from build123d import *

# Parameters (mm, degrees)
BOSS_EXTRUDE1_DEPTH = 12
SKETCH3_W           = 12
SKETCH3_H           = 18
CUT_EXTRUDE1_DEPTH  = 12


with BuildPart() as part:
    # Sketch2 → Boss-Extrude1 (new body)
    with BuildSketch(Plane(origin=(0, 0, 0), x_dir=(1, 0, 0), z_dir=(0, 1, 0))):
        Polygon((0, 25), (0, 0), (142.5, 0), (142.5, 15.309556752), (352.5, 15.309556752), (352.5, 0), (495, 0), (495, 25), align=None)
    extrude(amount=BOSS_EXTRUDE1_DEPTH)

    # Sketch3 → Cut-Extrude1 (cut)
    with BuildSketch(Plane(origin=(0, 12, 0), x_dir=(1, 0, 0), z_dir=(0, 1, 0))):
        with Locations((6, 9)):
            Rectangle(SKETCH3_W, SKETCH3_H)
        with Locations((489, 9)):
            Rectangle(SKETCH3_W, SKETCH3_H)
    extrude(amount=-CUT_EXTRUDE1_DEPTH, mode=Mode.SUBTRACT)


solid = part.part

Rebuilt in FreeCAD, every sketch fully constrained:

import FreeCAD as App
import Part
import Sketcher

V = App.Vector
Q = App.Units.Quantity


def add_polygon(sketch, points):
    """Adds a closed chain of lines whose ends are joined by coincident constraints."""
    first, n = sketch.GeometryCount, len(points)
    for a, b in zip(points, points[1:] + points[:1]):
        sketch.addGeometry(Part.LineSegment(App.Vector(*a, 0), App.Vector(*b, 0)), False)
    for i in range(n):
        sketch.addConstraint(Sketcher.Constraint("Coincident", first + i, 2, first + (i + 1) % n, 1))

doc = App.newDocument("Part")
body = doc.addObject("PartDesign::Body", "Body")

sketch1 = doc.addObject("Sketcher::SketchObject", "Sketch")
body.addObject(sketch1)
sketch1.AttachmentSupport = (doc.XZ_Plane, [""])
sketch1.MapMode = "FlatFace"
add_polygon(sketch1, [(0, -25), (0, 0), (142, 0), (142, -15), (352, -15), (352, 0), (495, 0), (495, -25)])
sketch1.addConstraint([
    Sketcher.Constraint("Vertical", 0),
    Sketcher.Constraint("Horizontal", 1),
    Sketcher.Constraint("Vertical", 2),
    Sketcher.Constraint("Horizontal", 3),
    Sketcher.Constraint("Vertical", 4),
    Sketcher.Constraint("Horizontal", 5),
    Sketcher.Constraint("Vertical", 6),
    Sketcher.Constraint("Horizontal", 7),
    Sketcher.Constraint("Coincident", 0, 2, -1, 1),
    Sketcher.Constraint("PointOnObject", 4, 2, -1),
    Sketcher.Constraint("Equal", 1, 5),
    Sketcher.Constraint("DistanceX", 3, 1, 3, 2, Q("210 mm")),
    Sketcher.Constraint("DistanceX", 7, 2, 7, 1, Q("495 mm")),
    Sketcher.Constraint("DistanceY", 0, 1, 0, 2, Q("25 mm")),
    Sketcher.Constraint("DistanceY", 2, 2, 2, 1, Q("15.309557 mm")),
])
pad1 = doc.addObject("PartDesign::Pad", "Pad")
body.addObject(pad1)
pad1.Profile = sketch1
pad1.Length = 12
pad1.Reversed = True

sketch2 = doc.addObject("Sketcher::SketchObject", "Sketch001")
body.addObject(sketch2)
sketch2.AttachmentSupport = (doc.XZ_Plane, [""])
sketch2.MapMode = "FlatFace"
sketch2.AttachmentOffset = App.Placement(V(0, 0, -12), App.Rotation())
add_polygon(sketch2, [(0, -18), (0, 0), (12, 0), (12, -18)])
add_polygon(sketch2, [(483, -18), (483, 0), (495, 0), (495, -18)])
sketch2.addConstraint([
    Sketcher.Constraint("Vertical", 0),
    Sketcher.Constraint("Horizontal", 1),
    Sketcher.Constraint("Vertical", 2),
    Sketcher.Constraint("Horizontal", 3),
    Sketcher.Constraint("Vertical", 4),
    Sketcher.Constraint("Horizontal", 5),
    Sketcher.Constraint("Vertical", 6),
    Sketcher.Constraint("Horizontal", 7),
    Sketcher.Constraint("Coincident", 0, 2, -1, 1),
    Sketcher.Constraint("PointOnObject", 4, 2, -1),
    Sketcher.Constraint("Horizontal", 3, 2, 6, 2),
    Sketcher.Constraint("Equal", 3, 5),
    Sketcher.Constraint("DistanceX", 1, 1, 1, 2, Q("12 mm")),
    Sketcher.Constraint("DistanceY", 0, 1, 0, 2, Q("18 mm")),
    Sketcher.Constraint("DistanceX", -1, 1, 4, 2, Q("483 mm")),
])
pocket1 = doc.addObject("PartDesign::Pocket", "Pocket")
body.addObject(pocket1)
pocket1.Profile = sketch2
pocket1.Length = 12
pocket1.Reversed = True

doc.recompute()
